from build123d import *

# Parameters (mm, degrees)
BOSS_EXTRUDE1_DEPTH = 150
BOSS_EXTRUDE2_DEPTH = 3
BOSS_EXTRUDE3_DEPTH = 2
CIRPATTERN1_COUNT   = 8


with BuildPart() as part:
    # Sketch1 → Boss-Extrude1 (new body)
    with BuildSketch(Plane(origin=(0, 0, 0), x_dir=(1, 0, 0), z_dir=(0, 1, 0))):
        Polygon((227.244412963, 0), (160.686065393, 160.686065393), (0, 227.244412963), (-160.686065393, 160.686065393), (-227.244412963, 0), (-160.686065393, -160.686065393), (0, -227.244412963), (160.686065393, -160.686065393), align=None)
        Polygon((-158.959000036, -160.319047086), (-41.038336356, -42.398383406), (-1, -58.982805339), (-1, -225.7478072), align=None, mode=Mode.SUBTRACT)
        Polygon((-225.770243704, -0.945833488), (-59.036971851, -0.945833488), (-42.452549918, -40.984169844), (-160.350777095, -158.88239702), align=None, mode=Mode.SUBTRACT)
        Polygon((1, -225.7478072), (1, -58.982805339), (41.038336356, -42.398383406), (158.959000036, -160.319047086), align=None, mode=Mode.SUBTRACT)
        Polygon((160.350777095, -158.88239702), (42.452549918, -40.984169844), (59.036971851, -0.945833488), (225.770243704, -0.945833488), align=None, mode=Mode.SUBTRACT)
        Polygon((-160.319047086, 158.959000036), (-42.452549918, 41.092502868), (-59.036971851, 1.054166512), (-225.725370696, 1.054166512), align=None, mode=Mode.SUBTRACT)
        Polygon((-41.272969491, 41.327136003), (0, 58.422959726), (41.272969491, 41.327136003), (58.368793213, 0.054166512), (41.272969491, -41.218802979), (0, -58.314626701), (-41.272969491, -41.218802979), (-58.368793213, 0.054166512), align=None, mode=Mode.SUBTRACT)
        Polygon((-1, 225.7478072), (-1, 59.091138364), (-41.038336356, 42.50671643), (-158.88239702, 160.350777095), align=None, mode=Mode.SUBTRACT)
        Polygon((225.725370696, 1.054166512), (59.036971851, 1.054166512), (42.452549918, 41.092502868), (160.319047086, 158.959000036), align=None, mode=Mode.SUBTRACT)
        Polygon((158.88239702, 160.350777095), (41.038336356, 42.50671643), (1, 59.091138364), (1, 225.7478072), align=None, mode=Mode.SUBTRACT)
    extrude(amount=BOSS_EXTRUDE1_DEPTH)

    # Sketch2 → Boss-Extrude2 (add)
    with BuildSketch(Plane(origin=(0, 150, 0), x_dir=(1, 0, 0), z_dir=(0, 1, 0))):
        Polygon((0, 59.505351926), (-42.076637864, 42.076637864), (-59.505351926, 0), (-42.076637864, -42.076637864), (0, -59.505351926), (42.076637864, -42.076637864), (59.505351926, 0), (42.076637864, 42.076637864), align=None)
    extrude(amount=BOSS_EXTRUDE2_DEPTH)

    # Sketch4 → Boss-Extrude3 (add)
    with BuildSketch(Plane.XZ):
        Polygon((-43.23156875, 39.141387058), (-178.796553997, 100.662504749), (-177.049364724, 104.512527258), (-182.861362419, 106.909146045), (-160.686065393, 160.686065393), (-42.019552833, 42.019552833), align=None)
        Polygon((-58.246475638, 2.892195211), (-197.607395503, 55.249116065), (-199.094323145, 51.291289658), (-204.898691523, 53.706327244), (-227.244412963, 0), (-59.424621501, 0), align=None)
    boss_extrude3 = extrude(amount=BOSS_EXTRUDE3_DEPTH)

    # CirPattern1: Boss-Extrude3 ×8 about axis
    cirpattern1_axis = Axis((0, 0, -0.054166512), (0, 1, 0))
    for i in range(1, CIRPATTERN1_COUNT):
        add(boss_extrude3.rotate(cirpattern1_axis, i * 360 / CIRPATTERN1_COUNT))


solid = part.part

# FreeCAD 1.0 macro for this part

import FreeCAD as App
import Part
import Sketcher
Q = App.Units.Quantity

doc = App.newDocument("Part")
body = doc.addObject("PartDesign::Body", "Body")

sketch1 = body.newObject("Sketcher::SketchObject", "Sketch")
sketch1.AttachmentSupport = (doc.getObject("XZ_Plane"), [""])
sketch1.MapMode = "FlatFace"
sketch1.addGeometry(Part.LineSegment(App.Vector(227, 0, 0), App.Vector(161, -161, 0)), False)
sketch1.addGeometry(Part.LineSegment(App.Vector(161, -161, 0), App.Vector(0, -227, 0)), False)
sketch1.addGeometry(Part.LineSegment(App.Vector(0, -227, 0), App.Vector(-161, -161, 0)), False)
sketch1.addGeometry(Part.LineSegment(App.Vector(-161, -161, 0), App.Vector(-227, 0, 0)), False)
sketch1.addGeometry(Part.LineSegment(App.Vector(-227, 0, 0), App.Vector(-161, 161, 0)), False)
sketch1.addGeometry(Part.LineSegment(App.Vector(-161, 161, 0), App.Vector(0, 227, 0)), False)
sketch1.addGeometry(Part.LineSegment(App.Vector(0, 227, 0), App.Vector(161, 161, 0)), False)
sketch1.addGeometry(Part.LineSegment(App.Vector(161, 161, 0), App.Vector(227, 0, 0)), False)
sketch1.addGeometry(Part.LineSegment(App.Vector(-1, 226, 0), App.Vector(-159, 160, 0)), False)
sketch1.addGeometry(Part.LineSegment(App.Vector(-159, 160, 0), App.Vector(-41, 42, 0)), False)
sketch1.addGeometry(Part.LineSegment(App.Vector(-41, 42, 0), App.Vector(-1, 59, 0)), False)
sketch1.addGeometry(Part.LineSegment(App.Vector(-1, 59, 0), App.Vector(-1, 226, 0)), False)
sketch1.addGeometry(Part.LineSegment(App.Vector(-160, 159, 0), App.Vector(-226, 1, 0)), False)
sketch1.addGeometry(Part.LineSegment(App.Vector(-226, 1, 0), App.Vector(-59, 1, 0)), False)
sketch1.addGeometry(Part.LineSegment(App.Vector(-59, 1, 0), App.Vector(-42, 41, 0)), False)
sketch1.addGeometry(Part.LineSegment(App.Vector(-42, 41, 0), App.Vector(-160, 159, 0)), False)
sketch1.addGeometry(Part.LineSegment(App.Vector(159, 160, 0), App.Vector(1, 226, 0)), False)
sketch1.addGeometry(Part.LineSegment(App.Vector(1, 226, 0), App.Vector(1, 59, 0)), False)
sketch1.addGeometry(Part.LineSegment(App.Vector(1, 59, 0), App.Vector(41, 42, 0)), False)
sketch1.addGeometry(Part.LineSegment(App.Vector(41, 42, 0), App.Vector(159, 160, 0)), False)
sketch1.addGeometry(Part.LineSegment(App.Vector(226, 1, 0), App.Vector(160, 159, 0)), False)
sketch1.addGeometry(Part.LineSegment(App.Vector(160, 159, 0), App.Vector(42, 41, 0)), False)
sketch1.addGeometry(Part.LineSegment(App.Vector(42, 41, 0), App.Vector(59, 1, 0)), False)
sketch1.addGeometry(Part.LineSegment(App.Vector(59, 1, 0), App.Vector(226, 1, 0)), False)
sketch1.addGeometry(Part.LineSegment(App.Vector(-226, -1, 0), App.Vector(-160, -159, 0)), False)
sketch1.addGeometry(Part.LineSegment(App.Vector(-160, -159, 0), App.Vector(-42, -41, 0)), False)
sketch1.addGeometry(Part.LineSegment(App.Vector(-42, -41, 0), App.Vector(-59, -1, 0)), False)
sketch1.addGeometry(Part.LineSegment(App.Vector(-59, -1, 0), App.Vector(-226, -1, 0)), False)
sketch1.addGeometry(Part.LineSegment(App.Vector(-159, -160, 0), App.Vector(-1, -226, 0)), False)
sketch1.addGeometry(Part.LineSegment(App.Vector(-1, -226, 0), App.Vector(-1, -59, 0)), False)
sketch1.addGeometry(Part.LineSegment(App.Vector(-1, -59, 0), App.Vector(-41, -43, 0)), False)
sketch1.addGeometry(Part.LineSegment(App.Vector(-41, -43, 0), App.Vector(-159, -160, 0)), False)
sketch1.addGeometry(Part.LineSegment(App.Vector(-58, 0, 0), App.Vector(-41, -41, 0)), False)
sketch1.addGeometry(Part.LineSegment(App.Vector(-41, -41, 0), App.Vector(0, -58, 0)), False)
sketch1.addGeometry(Part.LineSegment(App.Vector(0, -58, 0), App.Vector(41, -41, 0)), False)
sketch1.addGeometry(Part.LineSegment(App.Vector(41, -41, 0), App.Vector(58, 0, 0)), False)
sketch1.addGeometry(Part.LineSegment(App.Vector(58, 0, 0), App.Vector(41, 41, 0)), False)
sketch1.addGeometry(Part.LineSegment(App.Vector(41, 41, 0), App.Vector(0, 58, 0)), False)
sketch1.addGeometry(Part.LineSegment(App.Vector(0, 58, 0), App.Vector(-41, 41, 0)), False)
sketch1.addGeometry(Part.LineSegment(App.Vector(-41, 41, 0), App.Vector(-58, 0, 0)), False)
sketch1.addGeometry(Part.LineSegment(App.Vector(160, -159, 0), App.Vector(226, -1, 0)), False)
sketch1.addGeometry(Part.LineSegment(App.Vector(226, -1, 0), App.Vector(59, -1, 0)), False)
sketch1.addGeometry(Part.LineSegment(App.Vector(59, -1, 0), App.Vector(42, -41, 0)), False)
sketch1.addGeometry(Part.LineSegment(App.Vector(42, -41, 0), App.Vector(160, -159, 0)), False)
sketch1.addGeometry(Part.LineSegment(App.Vector(1, -226, 0), App.Vector(159, -160, 0)), False)
sketch1.addGeometry(Part.LineSegment(App.Vector(159, -160, 0), App.Vector(41, -43, 0)), False)
sketch1.addGeometry(Part.LineSegment(App.Vector(41, -43, 0), App.Vector(1, -59, 0)), False)
sketch1.addGeometry(Part.LineSegment(App.Vector(1, -59, 0), App.Vector(1, -226, 0)), False)
sketch1.addConstraint(Sketcher.Constraint("Coincident", 0, 2, 1, 1))
sketch1.addConstraint(Sketcher.Constraint("Coincident", 1, 2, 2, 1))
sketch1.addConstraint(Sketcher.Constraint("Coincident", 2, 2, 3, 1))
sketch1.addConstraint(Sketcher.Constraint("Coincident", 3, 2, 4, 1))
sketch1.addConstraint(Sketcher.Constraint("Coincident", 4, 2, 5, 1))
sketch1.addConstraint(Sketcher.Constraint("Coincident", 5, 2, 6, 1))
sketch1.addConstraint(Sketcher.Constraint("Coincident", 6, 2, 7, 1))
sketch1.addConstraint(Sketcher.Constraint("Coincident", 7, 2, 0, 1))
sketch1.addConstraint(Sketcher.Constraint("Coincident", 8, 2, 9, 1))
sketch1.addConstraint(Sketcher.Constraint("Coincident", 9, 2, 10, 1))
sketch1.addConstraint(Sketcher.Constraint("Coincident", 10, 2, 11, 1))
sketch1.addConstraint(Sketcher.Constraint("Coincident", 11, 2, 8, 1))
sketch1.addConstraint(Sketcher.Constraint("Coincident", 12, 2, 13, 1))
sketch1.addConstraint(Sketcher.Constraint("Coincident", 13, 2, 14, 1))
sketch1.addConstraint(Sketcher.Constraint("Coincident", 14, 2, 15, 1))
sketch1.addConstraint(Sketcher.Constraint("Coincident", 15, 2, 12, 1))
sketch1.addConstraint(Sketcher.Constraint("Coincident", 16, 2, 17, 1))
sketch1.addConstraint(Sketcher.Constraint("Coincident", 17, 2, 18, 1))
sketch1.addConstraint(Sketcher.Constraint("Coincident", 18, 2, 19, 1))
sketch1.addConstraint(Sketcher.Constraint("Coincident", 19, 2, 16, 1))
sketch1.addConstraint(Sketcher.Constraint("Coincident", 20, 2, 21, 1))
sketch1.addConstraint(Sketcher.Constraint("Coincident", 21, 2, 22, 1))
sketch1.addConstraint(Sketcher.Constraint("Coincident", 22, 2, 23, 1))
sketch1.addConstraint(Sketcher.Constraint("Coincident", 23, 2, 20, 1))
sketch1.addConstraint(Sketcher.Constraint("Coincident", 24, 2, 25, 1))
sketch1.addConstraint(Sketcher.Constraint("Coincident", 25, 2, 26, 1))
sketch1.addConstraint(Sketcher.Constraint("Coincident", 26, 2, 27, 1))
sketch1.addConstraint(Sketcher.Constraint("Coincident", 27, 2, 24, 1))
sketch1.addConstraint(Sketcher.Constraint("Coincident", 28, 2, 29, 1))
sketch1.addConstraint(Sketcher.Constraint("Coincident", 29, 2, 30, 1))
sketch1.addConstraint(Sketcher.Constraint("Coincident", 30, 2, 31, 1))
sketch1.addConstraint(Sketcher.Constraint("Coincident", 31, 2, 28, 1))
sketch1.addConstraint(Sketcher.Constraint("Coincident", 32, 2, 33, 1))
sketch1.addConstraint(Sketcher.Constraint("Coincident", 33, 2, 34, 1))
sketch1.addConstraint(Sketcher.Constraint("Coincident", 34, 2, 35, 1))
sketch1.addConstraint(Sketcher.Constraint("Coincident", 35, 2, 36, 1))
sketch1.addConstraint(Sketcher.Constraint("Coincident", 36, 2, 37, 1))
sketch1.addConstraint(Sketcher.Constraint("Coincident", 37, 2, 38, 1))
sketch1.addConstraint(Sketcher.Constraint("Coincident", 38, 2, 39, 1))
sketch1.addConstraint(Sketcher.Constraint("Coincident", 39, 2, 32, 1))
sketch1.addConstraint(Sketcher.Constraint("Coincident", 40, 2, 41, 1))
sketch1.addConstraint(Sketcher.Constraint("Coincident", 41, 2, 42, 1))
sketch1.addConstraint(Sketcher.Constraint("Coincident", 42, 2, 43, 1))
sketch1.addConstraint(Sketcher.Constraint("Coincident", 43, 2, 40, 1))
sketch1.addConstraint(Sketcher.Constraint("Coincident", 44, 2, 45, 1))
sketch1.addConstraint(Sketcher.Constraint("Coincident", 45, 2, 46, 1))
sketch1.addConstraint(Sketcher.Constraint("Coincident", 46, 2, 47, 1))
sketch1.addConstraint(Sketcher.Constraint("Coincident", 47, 2, 44, 1))
sketch1.addConstraint(Sketcher.Constraint("Vertical", 11))
sketch1.addConstraint(Sketcher.Constraint("Horizontal", 13))
sketch1.addConstraint(Sketcher.Constraint("Vertical", 17))
sketch1.addConstraint(Sketcher.Constraint("Horizontal", 23))
sketch1.addConstraint(Sketcher.Constraint("Horizontal", 27))
sketch1.addConstraint(Sketcher.Constraint("Vertical", 29))
sketch1.addConstraint(Sketcher.Constraint("Horizontal", 41))
sketch1.addConstraint(Sketcher.Constraint("Vertical", 47))
sketch1.addConstraint(Sketcher.Constraint("Symmetric", 0, 2, 4, 2, -1, 1))
sketch1.addConstraint(Sketcher.Constraint("Symmetric", 1, 2, 5, 2, -1, 1))
sketch1.addConstraint(Sketcher.Constraint("Symmetric", 2, 2, 6, 2, -1, 1))
sketch1.addConstraint(Sketcher.Constraint("Symmetric", 3, 2, 7, 2, -1, 1))
sketch1.addConstraint(Sketcher.Constraint("Symmetric", 16, 2, 28, 2, -1, 1))
sketch1.addConstraint(Sketcher.Constraint("Symmetric", 11, 2, 47, 2, -1, 1))
sketch1.addConstraint(Sketcher.Constraint("Symmetric", 0, 2, 2, 2, -2))
sketch1.addConstraint(Sketcher.Constraint("Symmetric", 11, 2, 16, 2, -2))
sketch1.addConstraint(Sketcher.Constraint("Symmetric", 9, 2, 18, 2, -2))
sketch1.addConstraint(Sketcher.Constraint("Symmetric", 8, 2, 19, 2, -2))
sketch1.addConstraint(Sketcher.Constraint("Symmetric", 15, 2, 20, 2, -2))
sketch1.addConstraint(Sketcher.Constraint("Symmetric", 14, 2, 21, 2, -2))
sketch1.addConstraint(Sketcher.Constraint("Symmetric", 13, 2, 22, 2, -2))
sketch1.addConstraint(Sketcher.Constraint("Symmetric", 32, 2, 34, 2, -2))
sketch1.addConstraint(Sketcher.Constraint("Symmetric", 36, 2, 38, 2, -2))
sketch1.addConstraint(Sketcher.Constraint("Symmetric", 35, 2, 39, 2, -2))
sketch1.addConstraint(Sketcher.Constraint("Symmetric", 27, 2, 40, 2, -2))
sketch1.addConstraint(Sketcher.Constraint("Symmetric", 25, 2, 42, 2, -2))
sketch1.addConstraint(Sketcher.Constraint("Symmetric", 24, 2, 43, 2, -2))
sketch1.addConstraint(Sketcher.Constraint("Symmetric", 31, 2, 44, 2, -2))
sketch1.addConstraint(Sketcher.Constraint("Symmetric", 30, 2, 45, 2, -2))
sketch1.addConstraint(Sketcher.Constraint("PointOnObject", 1, 2, -2))
sketch1.addConstraint(Sketcher.Constraint("PointOnObject", 3, 2, -1))
sketch1.addConstraint(Sketcher.Constraint("PointOnObject", 33, 2, -2))
sketch1.addConstraint(Sketcher.Constraint("PointOnObject", 37, 2, -2))
sketch1.addConstraint(Sketcher.Constraint("Perpendicular", 0, 2))
sketch1.addConstraint(Sketcher.Constraint("Perpendicular", 7, 8))
sketch1.addConstraint(Sketcher.Constraint("Parallel", 8, 10))
sketch1.addConstraint(Sketcher.Constraint("Perpendicular", 6, 12))
sketch1.addConstraint(Sketcher.Constraint("Parallel", 12, 14))
sketch1.addConstraint(Sketcher.Constraint("Parallel", 9, 15))
sketch1.addConstraint(Sketcher.Constraint("Parallel", 16, 18))
sketch1.addConstraint(Sketcher.Constraint("Perpendicular", 15, 19))
sketch1.addConstraint(Sketcher.Constraint("Perpendicular", 10, 20))
sketch1.addConstraint(Sketcher.Constraint("Parallel", 22, 24))
sketch1.addConstraint(Sketcher.Constraint("Parallel", 21, 25))
sketch1.addConstraint(Sketcher.Constraint("Parallel", 24, 26))
sketch1.addConstraint(Sketcher.Constraint("Parallel", 18, 28))
sketch1.addConstraint(Sketcher.Constraint("Parallel", 28, 30))
sketch1.addConstraint(Sketcher.Constraint("Parallel", 25, 31))
sketch1.addConstraint(Sketcher.Constraint("Parallel", 26, 32))
sketch1.addConstraint(Sketcher.Constraint("Parallel", 30, 33))
sketch1.addConstraint(Sketcher.Constraint("Perpendicular", 34, 36))
sketch1.addConstraint(Sketcher.Constraint("Perpendicular", 35, 37))
sketch1.addConstraint(Sketcher.Constraint("Parallel", 40, 42))
sketch1.addConstraint(Sketcher.Constraint("Parallel", 44, 46))
sketch1.addConstraint(Sketcher.Constraint("Vertical", 14, 2, 25, 2))
sketch1.addConstraint(Sketcher.Constraint("Vertical", 13, 2, 26, 2))
sketch1.addConstraint(Sketcher.Constraint("Vertical", 9, 2, 30, 2))
sketch1.addConstraint(Sketcher.Constraint("Vertical", 34, 2, 36, 2))
sketch1.addConstraint(Sketcher.Constraint("Equal", 0, 1))
sketch1.addConstraint(Sketcher.Constraint("Equal", 10, 14))
sketch1.addConstraint(Sketcher.Constraint("Equal", 32, 33))
sketch1.addConstraint(Sketcher.Constraint("DistanceX", 10, 2, -1, 1, 1.0))
sketch1.addConstraint(Sketcher.Constraint("Angle", 0, Q("-112.5 deg")))
sketch1.addConstraint(Sketcher.Constraint("DistanceY", 26, 2, 13, 2, 2.0))
sketch1.addConstraint(Sketcher.Constraint("DistanceY", 35, 2, 22, 2, 1.0))
sketch1.addConstraint(Sketcher.Constraint("DistanceY", 11, 1, 11, 2, 166.765002))
sketch1.addConstraint(Sketcher.Constraint("DistanceX", 27, 2, 27, 1, 166.688399))
sketch1.addConstraint(Sketcher.Constraint("DistanceX", 8, 2, -1, 1, 158.959))
sketch1.addConstraint(Sketcher.Constraint("DistanceY", 24, 2, -1, 1, 158.959))
sketch1.addConstraint(Sketcher.Constraint("DistanceX", 13, 1, 13, 2, 166.733272))
sketch1.addConstraint(Sketcher.Constraint("DistanceY", 29, 1, 29, 2, 166.656669))
sketch1.addConstraint(Sketcher.Constraint("DistanceX", 9, 2, 6, 2, 201.724402))
sketch1.addConstraint(Sketcher.Constraint("DistanceX", 14, 2, 21, 2, 84.9051))
sketch1.addConstraint(Sketcher.Constraint("Distance", 32, 44.67354))
sketch1.addConstraint(Sketcher.Constraint("DistanceY", 29, 2, -1, 1, 59.091138))
pad1 = body.newObject("PartDesign::Pad", "Pad")
pad1.Profile = sketch1
pad1.Length = 150
pad1.Reversed = True

sketch2 = body.newObject("Sketcher::SketchObject", "Sketch001")
sketch2.AttachmentSupport = (doc.getObject("XZ_Plane"), [""])
sketch2.MapMode = "FlatFace"
sketch2.AttachmentOffset = App.Placement(App.Vector(0, 0, -150), App.Rotation())
sketch2.addGeometry(Part.LineSegment(App.Vector(0, -60, 0), App.Vector(-42, -42, 0)), False)
sketch2.addGeometry(Part.LineSegment(App.Vector(-42, -42, 0), App.Vector(-60, 0, 0)), False)
sketch2.addGeometry(Part.LineSegment(App.Vector(-60, 0, 0), App.Vector(-42, 42, 0)), False)
sketch2.addGeometry(Part.LineSegment(App.Vector(-42, 42, 0), App.Vector(0, 60, 0)), False)
sketch2.addGeometry(Part.LineSegment(App.Vector(0, 60, 0), App.Vector(42, 42, 0)), False)
sketch2.addGeometry(Part.LineSegment(App.Vector(42, 42, 0), App.Vector(60, 0, 0)), False)
sketch2.addGeometry(Part.LineSegment(App.Vector(60, 0, 0), App.Vector(42, -42, 0)), False)
sketch2.addGeometry(Part.LineSegment(App.Vector(42, -42, 0), App.Vector(0, -60, 0)), False)
sketch2.addConstraint(Sketcher.Constraint("Coincident", 0, 2, 1, 1))
sketch2.addConstraint(Sketcher.Constraint("Coincident", 1, 2, 2, 1))
sketch2.addConstraint(Sketcher.Constraint("Coincident", 2, 2, 3, 1))
sketch2.addConstraint(Sketcher.Constraint("Coincident", 3, 2, 4, 1))
sketch2.addConstraint(Sketcher.Constraint("Coincident", 4, 2, 5, 1))
sketch2.addConstraint(Sketcher.Constraint("Coincident", 5, 2, 6, 1))
sketch2.addConstraint(Sketcher.Constraint("Coincident", 6, 2, 7, 1))
sketch2.addConstraint(Sketcher.Constraint("Coincident", 7, 2, 0, 1))
sketch2.addConstraint(Sketcher.Constraint("Symmetric", 0, 2, 4, 2, -1, 1))
sketch2.addConstraint(Sketcher.Constraint("Symmetric", 1, 2, 5, 2, -1, 1))
sketch2.addConstraint(Sketcher.Constraint("Symmetric", 2, 2, 6, 2, -1, 1))
sketch2.addConstraint(Sketcher.Constraint("Symmetric", 3, 2, 7, 2, -1, 1))
sketch2.addConstraint(Sketcher.Constraint("Symmetric", 2, 2, 4, 2, -2))
sketch2.addConstraint(Sketcher.Constraint("PointOnObject", 1, 2, -1))
sketch2.addConstraint(Sketcher.Constraint("PointOnObject", 3, 2, -2))
sketch2.addConstraint(Sketcher.Constraint("Perpendicular", 0, 2))
sketch2.addConstraint(Sketcher.Constraint("Equal", 0, 1))
sketch2.addConstraint(Sketcher.Constraint("Angle", 0, Q("157.5 deg")))
sketch2.addConstraint(Sketcher.Constraint("DistanceX", 1, 2, -1, 1, 59.505352))
pad2 = body.newObject("PartDesign::Pad", "Pad001")
pad2.Profile = sketch2
pad2.Length = 3
pad2.Reversed = True

sketch3 = body.newObject("Sketcher::SketchObject", "Sketch002")
sketch3.AttachmentSupport = (doc.getObject("XZ_Plane"), [""])
sketch3.MapMode = "FlatFace"
sketch3.addGeometry(Part.LineSegment(App.Vector(-178.8, 100.7, 0), App.Vector(-43.2, 39.1, 0)), False)
sketch3.addGeometry(Part.LineSegment(App.Vector(-43.2, 39.1, 0), App.Vector(-42, 42, 0)), False)
sketch3.addGeometry(Part.LineSegment(App.Vector(-42, 42, 0), App.Vector(-160.7, 160.7, 0)), False)
sketch3.addGeometry(Part.LineSegment(App.Vector(-160.7, 160.7, 0), App.Vector(-182.9, 106.9, 0)), False)
sketch3.addGeometry(Part.LineSegment(App.Vector(-182.9, 106.9, 0), App.Vector(-177, 104.5, 0)), False)
sketch3.addGeometry(Part.LineSegment(App.Vector(-177, 104.5, 0), App.Vector(-178.8, 100.7, 0)), False)
sketch3.addGeometry(Part.LineSegment(App.Vector(-58.2, 2.9, 0), App.Vector(-197.6, 55.2, 0)), False)
sketch3.addGeometry(Part.LineSegment(App.Vector(-197.6, 55.2, 0), App.Vector(-199.1, 51.3, 0)), False)
sketch3.addGeometry(Part.LineSegment(App.Vector(-199.1, 51.3, 0), App.Vector(-204.9, 53.7, 0)), False)
sketch3.addGeometry(Part.LineSegment(App.Vector(-204.9, 53.7, 0), App.Vector(-227.2, 0, 0)), False)
sketch3.addGeometry(Part.LineSegment(App.Vector(-227.2, 0, 0), App.Vector(-59.4, 0, 0)), False)
sketch3.addGeometry(Part.LineSegment(App.Vector(-59.4, 0, 0), App.Vector(-58.2, 2.9, 0)), False)
sketch3.addConstraint(Sketcher.Constraint("Coincident", 0, 2, 1, 1))
sketch3.addConstraint(Sketcher.Constraint("Coincident", 1, 2, 2, 1))
sketch3.addConstraint(Sketcher.Constraint("Coincident", 2, 2, 3, 1))
sketch3.addConstraint(Sketcher.Constraint("Coincident", 3, 2, 4, 1))
sketch3.addConstraint(Sketcher.Constraint("Coincident", 4, 2, 5, 1))
sketch3.addConstraint(Sketcher.Constraint("Coincident", 5, 2, 0, 1))
sketch3.addConstraint(Sketcher.Constraint("Coincident", 6, 2, 7, 1))
sketch3.addConstraint(Sketcher.Constraint("Coincident", 7, 2, 8, 1))
sketch3.addConstraint(Sketcher.Constraint("Coincident", 8, 2, 9, 1))
sketch3.addConstraint(Sketcher.Constraint("Coincident", 9, 2, 10, 1))
sketch3.addConstraint(Sketcher.Constraint("Coincident", 10, 2, 11, 1))
sketch3.addConstraint(Sketcher.Constraint("Coincident", 11, 2, 6, 1))
sketch3.addConstraint(Sketcher.Constraint("Horizontal", 10))
sketch3.addConstraint(Sketcher.Constraint("PointOnObject", 9, 2, -1))
sketch3.addConstraint(Sketcher.Constraint("Perpendicular", 3, 4))
sketch3.addConstraint(Sketcher.Constraint("Perpendicular", 0, 5))
sketch3.addConstraint(Sketcher.Constraint("Perpendicular", 6, 7))
sketch3.addConstraint(Sketcher.Constraint("Perpendicular", 8, 9))
sketch3.addConstraint(Sketcher.Constraint("Equal", 0, 6))
sketch3.addConstraint(Sketcher.Constraint("Equal", 5, 7))
sketch3.addConstraint(Sketcher.Constraint("Equal", 4, 8))
sketch3.addConstraint(Sketcher.Constraint("Equal", 3, 9))
sketch3.addConstraint(Sketcher.Constraint("Equal", 1, 11))
sketch3.addConstraint(Sketcher.Constraint("Angle", 2, Q("135 deg")))
sketch3.addConstraint(Sketcher.Constraint("DistanceX", 5, 2, 1, 2, 136.777001))
sketch3.addConstraint(Sketcher.Constraint("DistanceX", 10, 1, 10, 2, 167.819791))
sketch3.addConstraint(Sketcher.Constraint("DistanceX", 4, 2, 2, 2, 16.363299))
sketch3.addConstraint(Sketcher.Constraint("DistanceY", 8, 2, 4, 2, 50.8062))
sketch3.addConstraint(Sketcher.Constraint("DistanceX", 7, 2, 10, 2, 139.669702))
sketch3.addConstraint(Sketcher.Constraint("Distance", 1, 3.122951))
sketch3.addConstraint(Sketcher.Constraint("Distance", 2, 167.819791))
sketch3.addConstraint(Sketcher.Constraint("Distance", 4, 6.28674))
sketch3.addConstraint(Sketcher.Constraint("DistanceX", 0, 2, -1, 1, 43.231569))
sketch3.addConstraint(Sketcher.Constraint("DistanceY", -1, 1, 7, 2, 51.29129))
sketch3.addConstraint(Sketcher.Constraint("DistanceX", 8, 2, -1, 1, 204.898692))
sketch3.addConstraint(Sketcher.Constraint("DistanceY", 0, 2, 2, 2, 121.544678))
pad3 = body.newObject("PartDesign::Pad", "Pad002")
pad3.Profile = sketch3
pad3.Length = 2
doc.recompute()

datumline = body.newObject("PartDesign::Line", "DatumLine")
datumline.Placement = App.Placement(App.Vector(0, 0, -0.054167), App.Rotation(App.Vector(0, 0, 1), App.Vector(0, 1, 0)))
polarpattern = body.newObject("PartDesign::PolarPattern", "PolarPattern")
polarpattern.Originals = [pad3]
polarpattern.Axis = (datumline, [""])
polarpattern.Angle = 360
polarpattern.Occurrences = 8
body.Tip = polarpattern

doc.recompute()
